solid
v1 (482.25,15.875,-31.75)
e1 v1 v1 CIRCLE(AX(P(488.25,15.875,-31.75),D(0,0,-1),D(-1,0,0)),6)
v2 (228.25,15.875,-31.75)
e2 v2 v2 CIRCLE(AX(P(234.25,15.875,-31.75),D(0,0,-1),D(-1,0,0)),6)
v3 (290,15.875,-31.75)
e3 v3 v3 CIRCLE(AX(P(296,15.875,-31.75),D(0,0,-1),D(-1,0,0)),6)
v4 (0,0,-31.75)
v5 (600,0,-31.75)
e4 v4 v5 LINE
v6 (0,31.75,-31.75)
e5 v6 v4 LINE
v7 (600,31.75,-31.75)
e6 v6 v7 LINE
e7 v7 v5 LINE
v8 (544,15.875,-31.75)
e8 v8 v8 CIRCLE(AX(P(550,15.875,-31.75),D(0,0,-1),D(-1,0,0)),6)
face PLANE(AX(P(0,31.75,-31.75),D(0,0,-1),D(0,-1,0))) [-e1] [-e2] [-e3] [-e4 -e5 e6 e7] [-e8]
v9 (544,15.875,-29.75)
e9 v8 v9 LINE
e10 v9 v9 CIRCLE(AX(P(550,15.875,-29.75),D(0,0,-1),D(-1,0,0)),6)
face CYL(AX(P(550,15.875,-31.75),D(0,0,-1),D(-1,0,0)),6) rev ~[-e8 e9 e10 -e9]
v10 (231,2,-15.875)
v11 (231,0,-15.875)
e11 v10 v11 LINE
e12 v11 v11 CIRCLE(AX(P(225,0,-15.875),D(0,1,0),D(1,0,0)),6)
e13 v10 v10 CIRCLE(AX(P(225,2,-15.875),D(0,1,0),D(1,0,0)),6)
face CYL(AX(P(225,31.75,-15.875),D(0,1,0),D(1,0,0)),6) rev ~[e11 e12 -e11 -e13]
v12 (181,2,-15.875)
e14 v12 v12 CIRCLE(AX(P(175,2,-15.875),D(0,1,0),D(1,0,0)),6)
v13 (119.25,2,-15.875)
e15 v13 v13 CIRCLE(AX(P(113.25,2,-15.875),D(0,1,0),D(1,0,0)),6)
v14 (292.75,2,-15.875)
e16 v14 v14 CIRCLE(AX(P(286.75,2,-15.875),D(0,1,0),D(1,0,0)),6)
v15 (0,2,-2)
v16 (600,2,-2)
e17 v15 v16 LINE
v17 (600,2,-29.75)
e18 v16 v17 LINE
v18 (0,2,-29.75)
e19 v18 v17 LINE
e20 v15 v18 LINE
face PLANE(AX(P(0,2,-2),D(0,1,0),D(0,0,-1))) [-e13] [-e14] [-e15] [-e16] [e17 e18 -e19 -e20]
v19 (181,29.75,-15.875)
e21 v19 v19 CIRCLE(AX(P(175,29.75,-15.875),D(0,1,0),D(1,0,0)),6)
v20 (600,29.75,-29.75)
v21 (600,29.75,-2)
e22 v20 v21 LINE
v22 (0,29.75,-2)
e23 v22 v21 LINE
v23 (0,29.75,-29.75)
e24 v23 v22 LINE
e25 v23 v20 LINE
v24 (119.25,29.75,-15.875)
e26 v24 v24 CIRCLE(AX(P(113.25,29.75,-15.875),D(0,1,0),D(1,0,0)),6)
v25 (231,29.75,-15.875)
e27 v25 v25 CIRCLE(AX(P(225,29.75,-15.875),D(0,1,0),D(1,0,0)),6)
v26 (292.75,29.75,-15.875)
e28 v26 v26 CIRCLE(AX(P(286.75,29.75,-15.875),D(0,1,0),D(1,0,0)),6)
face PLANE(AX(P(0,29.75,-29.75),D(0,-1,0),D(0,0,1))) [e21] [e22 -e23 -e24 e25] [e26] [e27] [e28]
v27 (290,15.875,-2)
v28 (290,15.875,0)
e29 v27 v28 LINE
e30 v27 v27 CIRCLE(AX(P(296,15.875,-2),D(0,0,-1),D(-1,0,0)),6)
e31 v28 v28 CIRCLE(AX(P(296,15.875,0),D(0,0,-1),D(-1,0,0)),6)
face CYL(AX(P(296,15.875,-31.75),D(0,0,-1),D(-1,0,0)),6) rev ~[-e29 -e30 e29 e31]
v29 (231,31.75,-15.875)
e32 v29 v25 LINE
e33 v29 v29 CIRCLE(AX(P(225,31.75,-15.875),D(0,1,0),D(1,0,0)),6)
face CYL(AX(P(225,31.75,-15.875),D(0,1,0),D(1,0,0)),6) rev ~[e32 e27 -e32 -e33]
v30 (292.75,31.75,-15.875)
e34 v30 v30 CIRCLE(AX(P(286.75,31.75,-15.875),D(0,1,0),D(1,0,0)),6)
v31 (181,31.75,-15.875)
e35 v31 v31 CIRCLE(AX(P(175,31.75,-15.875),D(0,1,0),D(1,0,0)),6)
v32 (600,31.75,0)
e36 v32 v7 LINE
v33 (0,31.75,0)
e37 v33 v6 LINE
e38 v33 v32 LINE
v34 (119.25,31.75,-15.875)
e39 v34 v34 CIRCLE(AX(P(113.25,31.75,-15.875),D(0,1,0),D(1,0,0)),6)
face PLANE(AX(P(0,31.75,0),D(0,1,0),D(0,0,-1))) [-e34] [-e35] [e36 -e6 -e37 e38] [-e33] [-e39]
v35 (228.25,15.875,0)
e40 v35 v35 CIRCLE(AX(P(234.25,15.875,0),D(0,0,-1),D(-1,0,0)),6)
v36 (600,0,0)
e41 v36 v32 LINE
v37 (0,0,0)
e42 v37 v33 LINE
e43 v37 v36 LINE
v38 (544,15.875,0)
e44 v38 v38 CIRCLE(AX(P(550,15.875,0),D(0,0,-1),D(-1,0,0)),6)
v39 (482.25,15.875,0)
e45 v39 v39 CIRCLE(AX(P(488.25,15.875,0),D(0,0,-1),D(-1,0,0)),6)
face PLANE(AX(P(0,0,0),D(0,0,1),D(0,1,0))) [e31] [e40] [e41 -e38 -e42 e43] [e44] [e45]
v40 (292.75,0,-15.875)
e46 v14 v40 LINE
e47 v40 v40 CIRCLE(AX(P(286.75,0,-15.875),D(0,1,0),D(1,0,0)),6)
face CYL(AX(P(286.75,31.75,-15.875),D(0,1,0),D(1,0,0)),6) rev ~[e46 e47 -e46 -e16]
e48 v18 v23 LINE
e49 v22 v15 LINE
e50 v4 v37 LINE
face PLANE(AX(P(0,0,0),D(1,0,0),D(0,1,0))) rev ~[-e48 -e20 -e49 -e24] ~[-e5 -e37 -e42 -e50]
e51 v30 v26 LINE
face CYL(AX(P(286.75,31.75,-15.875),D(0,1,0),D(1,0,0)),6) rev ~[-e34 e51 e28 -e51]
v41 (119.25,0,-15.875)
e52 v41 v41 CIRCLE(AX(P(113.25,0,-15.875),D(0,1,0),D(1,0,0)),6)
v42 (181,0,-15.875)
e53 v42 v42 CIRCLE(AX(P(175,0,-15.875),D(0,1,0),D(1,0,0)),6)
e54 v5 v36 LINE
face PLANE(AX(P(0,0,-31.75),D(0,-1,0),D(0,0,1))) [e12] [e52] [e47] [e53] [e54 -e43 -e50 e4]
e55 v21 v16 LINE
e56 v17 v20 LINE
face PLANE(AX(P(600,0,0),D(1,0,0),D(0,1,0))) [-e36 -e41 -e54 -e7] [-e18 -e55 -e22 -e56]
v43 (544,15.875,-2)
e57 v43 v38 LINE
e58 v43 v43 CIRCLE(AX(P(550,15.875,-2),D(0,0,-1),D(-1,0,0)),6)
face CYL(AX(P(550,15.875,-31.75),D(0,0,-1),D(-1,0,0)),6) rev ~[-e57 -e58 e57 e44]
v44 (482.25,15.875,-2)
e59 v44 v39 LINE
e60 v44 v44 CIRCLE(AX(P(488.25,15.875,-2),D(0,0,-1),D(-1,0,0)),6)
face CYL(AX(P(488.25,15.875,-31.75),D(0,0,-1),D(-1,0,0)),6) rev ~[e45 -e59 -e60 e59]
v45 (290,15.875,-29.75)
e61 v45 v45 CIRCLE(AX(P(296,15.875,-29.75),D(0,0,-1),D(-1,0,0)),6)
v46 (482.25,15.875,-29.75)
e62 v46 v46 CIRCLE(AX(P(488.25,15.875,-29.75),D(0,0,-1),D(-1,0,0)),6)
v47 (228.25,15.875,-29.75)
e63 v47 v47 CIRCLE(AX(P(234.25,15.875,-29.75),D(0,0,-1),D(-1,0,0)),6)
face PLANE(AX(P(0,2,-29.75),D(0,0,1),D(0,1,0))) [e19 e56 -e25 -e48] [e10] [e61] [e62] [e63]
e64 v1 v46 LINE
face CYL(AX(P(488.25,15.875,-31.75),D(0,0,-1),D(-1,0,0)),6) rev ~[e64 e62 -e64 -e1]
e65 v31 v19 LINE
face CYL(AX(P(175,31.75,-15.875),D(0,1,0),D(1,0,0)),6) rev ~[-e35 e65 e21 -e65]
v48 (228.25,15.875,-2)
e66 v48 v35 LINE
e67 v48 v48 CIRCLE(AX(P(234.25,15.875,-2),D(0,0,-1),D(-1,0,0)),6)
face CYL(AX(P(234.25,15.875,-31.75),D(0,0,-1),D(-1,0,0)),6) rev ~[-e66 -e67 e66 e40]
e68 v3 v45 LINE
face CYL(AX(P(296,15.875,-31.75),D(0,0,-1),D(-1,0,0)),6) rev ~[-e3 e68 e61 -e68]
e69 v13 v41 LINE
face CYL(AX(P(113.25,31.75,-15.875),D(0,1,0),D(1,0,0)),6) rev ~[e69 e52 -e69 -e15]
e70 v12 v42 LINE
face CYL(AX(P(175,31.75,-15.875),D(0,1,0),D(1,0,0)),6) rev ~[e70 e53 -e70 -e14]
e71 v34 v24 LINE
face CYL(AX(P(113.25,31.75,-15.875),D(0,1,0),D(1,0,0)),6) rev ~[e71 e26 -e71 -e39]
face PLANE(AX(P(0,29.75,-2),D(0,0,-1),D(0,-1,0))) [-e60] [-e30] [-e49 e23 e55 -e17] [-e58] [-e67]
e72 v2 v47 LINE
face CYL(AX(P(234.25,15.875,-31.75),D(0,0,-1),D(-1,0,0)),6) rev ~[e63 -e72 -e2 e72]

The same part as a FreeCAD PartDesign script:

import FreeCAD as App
import Part
import Sketcher

V = App.Vector
Q = App.Units.Quantity


def add_polygon(sketch, points):
    """Adds a closed chain of lines whose ends are joined by coincident constraints."""
    first, n = sketch.GeometryCount, len(points)
    for a, b in zip(points, points[1:] + points[:1]):
        sketch.addGeometry(Part.LineSegment(App.Vector(*a, 0), App.Vector(*b, 0)), False)
    for i in range(n):
        sketch.addConstraint(Sketcher.Constraint("Coincident", first + i, 2, first + (i + 1) % n, 1))

doc = App.newDocument("Part")
params = doc.addObject("Spreadsheet::Sheet", "Params")
for row, (alias, value) in enumerate([
    ("sketch1_width", "31.75 mm"),
    ("pad1_length", "600 mm"),
    ("sketch2_diameter", "12 mm"),
    ("sketch3_diameter", "12 mm"),
    ("sketch4_diameter", "12 mm"),
], start=1):
    params.set(f"A{row}", alias)
    params.set(f"B{row}", "=" + value)
    params.setAlias(f"B{row}", alias)

body = doc.addObject("PartDesign::Body", "Body")

sketch1 = body.newObject("Sketcher::SketchObject", "Sketch")
sketch1.AttachmentSupport = (doc.getObject("YZ_Plane"), [""])
sketch1.MapMode = "FlatFace"
add_polygon(sketch1, [(32, 0), (0, 0), (0, -32), (32, -32)])
add_polygon(sketch1, [(30, -2), (30, -30), (2, -30), (2, -2)])
sketch1.addConstraint([
    Sketcher.Constraint("Horizontal", 0),
    Sketcher.Constraint("Vertical", 1),
    Sketcher.Constraint("Horizontal", 2),
    Sketcher.Constraint("Vertical", 3),
    Sketcher.Constraint("Vertical", 4),
    Sketcher.Constraint("Horizontal", 5),
    Sketcher.Constraint("Vertical", 6),
    Sketcher.Constraint("Horizontal", 7),
    Sketcher.Constraint("Coincident", 0, 2, -1, 1),
    Sketcher.Constraint("Equal", 2, 1),
    Sketcher.Constraint("Equal", 7, 4),
    Sketcher.Constraint("DistanceX", -1, 1, 5, 2, Q("2 mm")),
    Sketcher.Constraint("DistanceY", 6, 2, -1, 1, Q("2 mm")),
    Sketcher.Constraint("DistanceX", 4, 2, 2, 2, Q("2 mm")),
    Sketcher.Constraint("DistanceX", 0, 2, 0, 1, Q("31.75 mm")),
])
sketch1.setExpression("Constraints[22]", "Params.sketch1_width")
pad1 = body.newObject("PartDesign::Pad", "Pad")
pad1.Profile = sketch1
pad1.setExpression("Length", "Params.pad1_length")

sketch2 = body.newObject("Sketcher::SketchObject", "Sketch001")
sketch2.AttachmentSupport = (doc.getObject("XZ_Plane"), [""])
sketch2.MapMode = "FlatFace"
sketch2.AttachmentOffset = App.Placement(V(0, 0, -31.75), App.Rotation())
sketch2.addGeometry([
    Part.Circle(V(287, -16, 0), V(0, 0, 1), 6),
    Part.Circle(V(113, -16, 0), V(0, 0, 1), 6),
    Part.Circle(V(175, -16, 0), V(0, 0, 1), 6),
    Part.Circle(V(225, -16, 0), V(0, 0, 1), 6),
], False)
sketch2.addConstraint([
    Sketcher.Constraint("Equal", 0, 1),
    Sketcher.Constraint("Equal", 1, 2),
    Sketcher.Constraint("Equal", 2, 3),
    Sketcher.Constraint("Horizontal", 0, 3, 1, 3),
    Sketcher.Constraint("Horizontal", 1, 3, 2, 3),
    Sketcher.Constraint("Horizontal", 2, 3, 3, 3),
    Sketcher.Constraint("Diameter", 0, Q("12 mm")),
    Sketcher.Constraint("DistanceX", 1, 3, 2, 3, Q("61.75 mm")),
    Sketcher.Constraint("DistanceX", 3, 3, 0, 3, Q("61.75 mm")),
    Sketcher.Constraint("DistanceX", -1, 1, 2, 3, Q("175 mm")),
    Sketcher.Constraint("DistanceX", -1, 1, 3, 3, Q("225 mm")),
    Sketcher.Constraint("DistanceY", 0, 3, -1, 1, Q("15.875 mm")),
])
sketch2.setExpression("Constraints[6]", "Params.sketch2_diameter")
pocket1 = body.newObject("PartDesign::Pocket", "Pocket")
pocket1.Profile = sketch2
pocket1.Type = "ThroughAll"
pocket1.Reversed = True

sketch3 = body.newObject("Sketcher::SketchObject", "Sketch002")
sketch3.AttachmentSupport = (doc.getObject("XY_Plane"), [""])
sketch3.MapMode = "FlatFace"
sketch3.AttachmentOffset = App.Placement(V(0, 0, -31.75), App.Rotation())
sketch3.addGeometry([
    Part.Circle(V(550, 16, 0), V(0, 0, 1), 6),
    Part.Circle(V(488, 16, 0), V(0, 0, 1), 6),
], False)
sketch3.addConstraint([
    Sketcher.Constraint("Equal", 0, 1),
    Sketcher.Constraint("Horizontal", 0, 3, 1, 3),
    Sketcher.Constraint("Diameter", 0, Q("12 mm")),
    Sketcher.Constraint("DistanceX", 1, 3, 0, 3, Q("61.75 mm")),
    Sketcher.Constraint("DistanceX", -1, 1, 0, 3, Q("550 mm")),
    Sketcher.Constraint("DistanceY", -1, 1, 0, 3, Q("15.875 mm")),
])
sketch3.setExpression("Constraints[2]", "Params.sketch3_diameter")
pocket2 = body.newObject("PartDesign::Pocket", "Pocket001")
pocket2.Profile = sketch3
pocket2.Type = "ThroughAll"
pocket2.Reversed = True

sketch4 = body.newObject("Sketcher::SketchObject", "Sketch003")
sketch4.AttachmentSupport = (doc.getObject("XY_Plane"), [""])
sketch4.MapMode = "FlatFace"
sketch4.AttachmentOffset = App.Placement(V(0, 0, -31.75), App.Rotation())
sketch4.addGeometry([
    Part.Circle(V(296, 16, 0), V(0, 0, 1), 6),
    Part.Circle(V(234, 16, 0), V(0, 0, 1), 6),
], False)
sketch4.addConstraint([
    Sketcher.Constraint("Equal", 0, 1),
    Sketcher.Constraint("Horizontal", 0, 3, 1, 3),
    Sketcher.Constraint("Diameter", 0, Q("12 mm")),
    Sketcher.Constraint("DistanceX", 1, 3, 0, 3, Q("61.75 mm")),
    Sketcher.Constraint("DistanceX", -1, 1, 0, 3, Q("296 mm")),
    Sketcher.Constraint("DistanceY", -1, 1, 0, 3, Q("15.875 mm")),
])
sketch4.setExpression("Constraints[2]", "Params.sketch4_diameter")
pocket3 = body.newObject("PartDesign::Pocket", "Pocket002")
pocket3.Profile = sketch4
pocket3.Type = "ThroughAll"
pocket3.Reversed = True

doc.recompute()
